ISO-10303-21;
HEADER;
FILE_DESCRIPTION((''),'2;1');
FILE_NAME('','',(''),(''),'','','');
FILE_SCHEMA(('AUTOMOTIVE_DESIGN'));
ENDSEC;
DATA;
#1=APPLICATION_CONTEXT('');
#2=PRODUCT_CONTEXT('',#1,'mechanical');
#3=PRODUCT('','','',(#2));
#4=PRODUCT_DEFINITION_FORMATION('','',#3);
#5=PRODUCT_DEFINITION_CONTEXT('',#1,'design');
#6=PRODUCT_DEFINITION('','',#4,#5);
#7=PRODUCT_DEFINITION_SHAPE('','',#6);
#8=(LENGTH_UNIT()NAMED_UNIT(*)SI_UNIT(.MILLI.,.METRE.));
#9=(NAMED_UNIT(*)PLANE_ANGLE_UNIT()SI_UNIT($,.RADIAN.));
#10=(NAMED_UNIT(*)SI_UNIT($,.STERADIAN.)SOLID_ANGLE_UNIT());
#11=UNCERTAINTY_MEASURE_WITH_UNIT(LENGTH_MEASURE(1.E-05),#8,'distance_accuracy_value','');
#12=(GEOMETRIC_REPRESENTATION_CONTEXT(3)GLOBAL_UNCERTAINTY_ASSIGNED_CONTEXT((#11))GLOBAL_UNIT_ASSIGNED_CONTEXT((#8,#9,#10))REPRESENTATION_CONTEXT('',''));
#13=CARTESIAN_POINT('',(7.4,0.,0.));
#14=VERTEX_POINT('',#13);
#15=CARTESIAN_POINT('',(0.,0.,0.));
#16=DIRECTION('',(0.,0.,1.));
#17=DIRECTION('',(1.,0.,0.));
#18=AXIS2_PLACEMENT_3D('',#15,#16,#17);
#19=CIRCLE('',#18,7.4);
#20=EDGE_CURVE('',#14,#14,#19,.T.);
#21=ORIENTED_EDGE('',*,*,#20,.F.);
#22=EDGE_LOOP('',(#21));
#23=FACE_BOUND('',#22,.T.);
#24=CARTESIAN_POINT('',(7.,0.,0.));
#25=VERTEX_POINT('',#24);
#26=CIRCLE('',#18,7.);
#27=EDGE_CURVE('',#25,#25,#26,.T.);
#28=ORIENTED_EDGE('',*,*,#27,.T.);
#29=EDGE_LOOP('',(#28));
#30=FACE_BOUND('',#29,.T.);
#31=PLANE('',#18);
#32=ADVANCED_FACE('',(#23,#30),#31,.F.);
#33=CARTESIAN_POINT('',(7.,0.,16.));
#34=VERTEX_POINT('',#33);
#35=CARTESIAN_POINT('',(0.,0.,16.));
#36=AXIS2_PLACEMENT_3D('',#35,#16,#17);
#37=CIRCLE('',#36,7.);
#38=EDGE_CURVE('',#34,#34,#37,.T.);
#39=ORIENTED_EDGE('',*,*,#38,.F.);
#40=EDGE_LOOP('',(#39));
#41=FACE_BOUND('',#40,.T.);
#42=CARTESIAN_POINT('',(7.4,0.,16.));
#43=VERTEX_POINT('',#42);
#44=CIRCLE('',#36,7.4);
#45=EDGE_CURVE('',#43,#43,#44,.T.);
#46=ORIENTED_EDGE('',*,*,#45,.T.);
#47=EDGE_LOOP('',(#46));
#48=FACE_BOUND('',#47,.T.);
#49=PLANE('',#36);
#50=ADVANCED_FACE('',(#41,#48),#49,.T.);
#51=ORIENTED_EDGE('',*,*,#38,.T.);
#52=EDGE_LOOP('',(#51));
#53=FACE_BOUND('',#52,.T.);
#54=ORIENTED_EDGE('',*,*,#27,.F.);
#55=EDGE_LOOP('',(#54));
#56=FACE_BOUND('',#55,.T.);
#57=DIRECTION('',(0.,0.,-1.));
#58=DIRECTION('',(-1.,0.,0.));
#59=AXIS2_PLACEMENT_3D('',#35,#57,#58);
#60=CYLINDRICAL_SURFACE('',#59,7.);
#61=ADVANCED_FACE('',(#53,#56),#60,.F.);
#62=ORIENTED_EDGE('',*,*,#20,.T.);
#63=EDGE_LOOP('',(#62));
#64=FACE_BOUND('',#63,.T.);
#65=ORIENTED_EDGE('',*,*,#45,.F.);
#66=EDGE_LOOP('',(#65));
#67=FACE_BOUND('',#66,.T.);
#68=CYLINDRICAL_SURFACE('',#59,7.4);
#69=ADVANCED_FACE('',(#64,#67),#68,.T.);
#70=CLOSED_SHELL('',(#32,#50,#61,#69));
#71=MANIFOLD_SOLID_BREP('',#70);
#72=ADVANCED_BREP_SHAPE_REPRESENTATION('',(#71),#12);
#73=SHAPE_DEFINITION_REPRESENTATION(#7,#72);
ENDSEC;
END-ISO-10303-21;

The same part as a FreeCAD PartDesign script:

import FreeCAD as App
import Part
import Sketcher
Q = App.Units.Quantity

doc = App.newDocument("Part")
body = doc.addObject("PartDesign::Body", "Body")

# Sketch on XY plane
sketch1 = body.newObject("Sketcher::SketchObject", "Sketch")
sketch1.AttachmentSupport = (doc.getObject("XY_Plane"), [""])
sketch1.MapMode = "FlatFace"
sketch1.addGeometry(Part.Circle(App.Vector(0, 0, 0), App.Vector(0, 0, 1), 7), False)
sketch1.addGeometry(Part.Circle(App.Vector(0, 0, 0), App.Vector(0, 0, 1), 7), False)
sketch1.addConstraint(Sketcher.Constraint("Coincident", 0, 3, -1, 1))
sketch1.addConstraint(Sketcher.Constraint("Coincident", 1, 3, -1, 1))
sketch1.addConstraint(Sketcher.Constraint("Diameter", 1, Q("14 mm")))
sketch1.addConstraint(Sketcher.Constraint("Diameter", 0, Q("14.8 mm")))
pad1 = body.newObject("PartDesign::Pad", "Pad")
pad1.Profile = sketch1
pad1.Length = 16

doc.recompute()
